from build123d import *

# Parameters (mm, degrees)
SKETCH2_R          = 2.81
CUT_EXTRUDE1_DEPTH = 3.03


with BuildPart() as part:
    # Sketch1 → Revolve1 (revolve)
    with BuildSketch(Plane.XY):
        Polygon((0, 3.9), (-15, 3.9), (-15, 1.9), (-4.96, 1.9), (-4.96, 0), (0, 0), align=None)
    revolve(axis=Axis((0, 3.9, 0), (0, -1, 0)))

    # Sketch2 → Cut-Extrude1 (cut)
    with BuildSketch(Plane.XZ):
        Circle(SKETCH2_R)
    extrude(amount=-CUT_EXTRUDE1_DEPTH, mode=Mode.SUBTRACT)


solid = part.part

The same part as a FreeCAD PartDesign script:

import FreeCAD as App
import Part
import Sketcher
Q = App.Units.Quantity


def add_polygon(sketch, points):
    """Adds a closed chain of lines whose ends are joined by coincident constraints."""
    first, n = sketch.GeometryCount, len(points)
    for a, b in zip(points, points[1:] + points[:1]):
        sketch.addGeometry(Part.LineSegment(App.Vector(*a, 0), App.Vector(*b, 0)), False)
    for i in range(n):
        sketch.addConstraint(Sketcher.Constraint("Coincident", first + i, 2, first + (i + 1) % n, 1))

doc = App.newDocument("Part")
body = doc.addObject("PartDesign::Body", "Body")

sketch1 = body.newObject("Sketcher::SketchObject", "Sketch")
sketch1.AttachmentSupport = (doc.getObject("XY_Plane"), [""])
sketch1.MapMode = "FlatFace"
add_polygon(sketch1, [(0, 3.9), (-15, 3.9), (-15, 1.9), (-5, 1.9), (-5, 0), (0, 0)])
sketch1.addConstraint(Sketcher.Constraint("Horizontal", 0))
sketch1.addConstraint(Sketcher.Constraint("Vertical", 1))
sketch1.addConstraint(Sketcher.Constraint("Horizontal", 2))
sketch1.addConstraint(Sketcher.Constraint("Vertical", 3))
sketch1.addConstraint(Sketcher.Constraint("Horizontal", 4))
sketch1.addConstraint(Sketcher.Constraint("Vertical", 5))
sketch1.addConstraint(Sketcher.Constraint("Coincident", 4, 2, -1, 1))
sketch1.addConstraint(Sketcher.Constraint("DistanceX", 0, 2, 0, 1, Q("15 mm")))
sketch1.addConstraint(Sketcher.Constraint("DistanceY", 1, 2, 1, 1, Q("2 mm")))
sketch1.addConstraint(Sketcher.Constraint("DistanceY", 3, 2, 3, 1, Q("1.9 mm")))
sketch1.addConstraint(Sketcher.Constraint("DistanceX", 2, 1, 2, 2, Q("10.04 mm")))
revolution = body.newObject("PartDesign::Revolution", "Revolution")
revolution.Profile = sketch1
revolution.ReferenceAxis = (sketch1, ["V_Axis"])
revolution.Angle = 360

sketch2 = body.newObject("Sketcher::SketchObject", "Sketch001")
sketch2.AttachmentSupport = (doc.getObject("XZ_Plane"), [""])
sketch2.MapMode = "FlatFace"
sketch2.addGeometry(Part.Circle(App.Vector(0, 0, 0), App.Vector(0, 0, 1), 2.8), False)
sketch2.addConstraint(Sketcher.Constraint("Coincident", 0, 3, -1, 1))
sketch2.addConstraint(Sketcher.Constraint("Diameter", 0, Q("5.62 mm")))
pocket1 = body.newObject("PartDesign::Pocket", "Pocket")
pocket1.Profile = sketch2
pocket1.Length = 3.03

doc.recompute()
